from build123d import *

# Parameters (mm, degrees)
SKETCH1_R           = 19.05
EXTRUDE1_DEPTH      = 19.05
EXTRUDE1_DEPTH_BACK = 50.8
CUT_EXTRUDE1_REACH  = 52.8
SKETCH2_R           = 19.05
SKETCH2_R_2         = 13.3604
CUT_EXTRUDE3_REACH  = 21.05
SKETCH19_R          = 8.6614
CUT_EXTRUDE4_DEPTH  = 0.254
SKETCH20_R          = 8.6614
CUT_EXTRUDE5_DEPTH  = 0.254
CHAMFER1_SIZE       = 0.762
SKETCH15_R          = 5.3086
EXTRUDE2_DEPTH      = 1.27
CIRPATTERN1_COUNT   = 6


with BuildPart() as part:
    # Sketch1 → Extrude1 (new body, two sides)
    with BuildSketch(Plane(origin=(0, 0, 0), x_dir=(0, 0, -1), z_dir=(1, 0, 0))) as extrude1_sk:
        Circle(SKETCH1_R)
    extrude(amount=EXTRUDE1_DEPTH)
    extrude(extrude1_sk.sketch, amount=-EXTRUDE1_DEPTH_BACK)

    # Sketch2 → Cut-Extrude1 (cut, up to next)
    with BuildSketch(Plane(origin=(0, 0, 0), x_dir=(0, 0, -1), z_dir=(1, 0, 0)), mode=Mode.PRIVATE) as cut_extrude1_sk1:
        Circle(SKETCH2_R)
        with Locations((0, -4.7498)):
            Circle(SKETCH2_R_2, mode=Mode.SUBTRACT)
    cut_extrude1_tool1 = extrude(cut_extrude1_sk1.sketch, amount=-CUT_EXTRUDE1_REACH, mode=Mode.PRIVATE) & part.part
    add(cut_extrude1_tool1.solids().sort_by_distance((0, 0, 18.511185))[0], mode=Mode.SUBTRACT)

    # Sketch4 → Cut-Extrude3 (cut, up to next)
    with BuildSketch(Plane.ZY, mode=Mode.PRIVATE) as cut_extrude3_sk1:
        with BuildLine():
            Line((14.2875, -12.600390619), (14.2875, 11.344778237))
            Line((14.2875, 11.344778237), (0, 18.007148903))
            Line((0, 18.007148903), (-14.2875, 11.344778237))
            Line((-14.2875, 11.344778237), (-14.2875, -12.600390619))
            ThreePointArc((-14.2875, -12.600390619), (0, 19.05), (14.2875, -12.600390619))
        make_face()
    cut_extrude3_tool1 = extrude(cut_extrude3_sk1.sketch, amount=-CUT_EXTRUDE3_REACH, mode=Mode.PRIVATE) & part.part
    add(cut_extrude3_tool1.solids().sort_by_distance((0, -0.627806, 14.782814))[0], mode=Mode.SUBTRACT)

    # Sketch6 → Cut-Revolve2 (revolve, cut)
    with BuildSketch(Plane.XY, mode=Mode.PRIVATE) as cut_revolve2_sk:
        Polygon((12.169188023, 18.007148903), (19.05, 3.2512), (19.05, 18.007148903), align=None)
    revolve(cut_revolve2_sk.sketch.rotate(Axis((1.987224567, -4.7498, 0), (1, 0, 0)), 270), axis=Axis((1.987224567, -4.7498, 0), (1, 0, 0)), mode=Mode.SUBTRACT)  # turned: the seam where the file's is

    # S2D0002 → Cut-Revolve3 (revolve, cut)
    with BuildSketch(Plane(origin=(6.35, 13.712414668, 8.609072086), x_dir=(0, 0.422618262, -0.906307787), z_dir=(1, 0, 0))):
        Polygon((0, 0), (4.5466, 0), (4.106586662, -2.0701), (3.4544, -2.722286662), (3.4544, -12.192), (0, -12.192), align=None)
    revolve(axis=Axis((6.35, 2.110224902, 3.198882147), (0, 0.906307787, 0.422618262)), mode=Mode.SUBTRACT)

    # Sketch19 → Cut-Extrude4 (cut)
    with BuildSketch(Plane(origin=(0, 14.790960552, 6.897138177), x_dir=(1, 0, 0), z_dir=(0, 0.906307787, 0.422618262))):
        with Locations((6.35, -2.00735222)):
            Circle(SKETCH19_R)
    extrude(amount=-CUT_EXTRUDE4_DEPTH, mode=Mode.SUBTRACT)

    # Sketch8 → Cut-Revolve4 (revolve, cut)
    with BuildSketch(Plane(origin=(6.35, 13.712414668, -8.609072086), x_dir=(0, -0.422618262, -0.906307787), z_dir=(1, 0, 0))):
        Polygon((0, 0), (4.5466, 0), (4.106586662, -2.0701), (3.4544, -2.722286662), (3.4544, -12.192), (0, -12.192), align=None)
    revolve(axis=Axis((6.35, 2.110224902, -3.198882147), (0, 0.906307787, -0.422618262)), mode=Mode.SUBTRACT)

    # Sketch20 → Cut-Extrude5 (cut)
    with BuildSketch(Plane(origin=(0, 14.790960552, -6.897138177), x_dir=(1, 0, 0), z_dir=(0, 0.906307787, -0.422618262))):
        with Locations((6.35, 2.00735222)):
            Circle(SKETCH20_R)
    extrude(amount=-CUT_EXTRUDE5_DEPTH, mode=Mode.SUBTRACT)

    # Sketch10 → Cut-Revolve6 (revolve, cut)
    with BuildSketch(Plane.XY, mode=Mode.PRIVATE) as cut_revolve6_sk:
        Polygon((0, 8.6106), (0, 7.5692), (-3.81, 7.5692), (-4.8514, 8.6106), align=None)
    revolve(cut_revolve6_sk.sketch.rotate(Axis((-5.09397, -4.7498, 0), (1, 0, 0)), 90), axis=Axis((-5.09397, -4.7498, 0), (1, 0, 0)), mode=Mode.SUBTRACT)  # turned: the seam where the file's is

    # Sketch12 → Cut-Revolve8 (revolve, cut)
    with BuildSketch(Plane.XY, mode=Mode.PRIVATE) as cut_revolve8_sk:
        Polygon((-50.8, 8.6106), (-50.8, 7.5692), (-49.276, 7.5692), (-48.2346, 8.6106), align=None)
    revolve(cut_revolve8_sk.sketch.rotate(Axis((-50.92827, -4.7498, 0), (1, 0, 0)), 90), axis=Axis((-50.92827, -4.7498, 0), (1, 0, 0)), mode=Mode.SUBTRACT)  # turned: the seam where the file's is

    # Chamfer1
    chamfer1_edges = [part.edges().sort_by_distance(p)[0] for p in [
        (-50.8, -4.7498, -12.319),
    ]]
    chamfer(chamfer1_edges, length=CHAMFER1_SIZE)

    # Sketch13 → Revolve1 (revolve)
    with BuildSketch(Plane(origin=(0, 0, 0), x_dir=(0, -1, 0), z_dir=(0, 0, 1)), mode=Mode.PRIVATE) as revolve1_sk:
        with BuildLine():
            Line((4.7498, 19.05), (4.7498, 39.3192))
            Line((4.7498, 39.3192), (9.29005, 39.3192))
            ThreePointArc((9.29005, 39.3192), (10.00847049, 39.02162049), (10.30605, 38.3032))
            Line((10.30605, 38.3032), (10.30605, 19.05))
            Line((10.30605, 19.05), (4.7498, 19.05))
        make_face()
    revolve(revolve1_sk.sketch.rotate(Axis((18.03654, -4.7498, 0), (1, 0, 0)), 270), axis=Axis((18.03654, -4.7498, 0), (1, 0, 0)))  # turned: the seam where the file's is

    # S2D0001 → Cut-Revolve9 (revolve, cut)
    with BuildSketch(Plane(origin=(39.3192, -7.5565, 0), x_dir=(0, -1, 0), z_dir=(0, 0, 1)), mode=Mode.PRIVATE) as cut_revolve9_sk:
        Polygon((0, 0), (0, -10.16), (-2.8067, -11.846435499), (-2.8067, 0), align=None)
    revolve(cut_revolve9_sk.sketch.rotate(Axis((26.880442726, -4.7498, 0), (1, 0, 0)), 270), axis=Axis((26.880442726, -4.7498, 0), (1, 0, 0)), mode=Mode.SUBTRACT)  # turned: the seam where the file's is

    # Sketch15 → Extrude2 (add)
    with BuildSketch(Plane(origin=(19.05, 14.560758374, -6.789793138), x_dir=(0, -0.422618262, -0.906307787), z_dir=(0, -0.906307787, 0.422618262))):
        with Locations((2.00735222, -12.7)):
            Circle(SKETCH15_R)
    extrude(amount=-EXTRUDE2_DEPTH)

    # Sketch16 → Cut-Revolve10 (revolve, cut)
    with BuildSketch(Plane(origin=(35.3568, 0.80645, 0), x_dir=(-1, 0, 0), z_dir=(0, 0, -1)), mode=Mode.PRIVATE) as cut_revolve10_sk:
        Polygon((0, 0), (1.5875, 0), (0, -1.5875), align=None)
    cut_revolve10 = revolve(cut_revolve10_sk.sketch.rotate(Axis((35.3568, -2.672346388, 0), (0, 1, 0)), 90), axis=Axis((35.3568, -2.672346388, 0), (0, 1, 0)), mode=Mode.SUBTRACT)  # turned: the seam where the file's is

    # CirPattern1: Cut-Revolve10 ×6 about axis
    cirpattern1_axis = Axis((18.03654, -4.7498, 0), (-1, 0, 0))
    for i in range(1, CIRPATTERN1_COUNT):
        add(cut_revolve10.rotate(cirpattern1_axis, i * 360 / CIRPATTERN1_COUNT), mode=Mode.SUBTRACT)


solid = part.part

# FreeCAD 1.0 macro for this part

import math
import FreeCAD as App
import Part
import Sketcher
from FreeCAD import Vector
Q = App.Units.Quantity


def edges_at(feature, points):
    """Names of the edges that pass closest to the given points."""
    edges = feature.Shape.Edges
    near = lambda p: min(range(len(edges)), key=lambda i: edges[i].distToShape(Part.Vertex(*p))[0])
    return sorted({f"Edge{near(p) + 1}" for p in points})


def add_polygon(sketch, points):
    """Adds a closed chain of lines whose ends are joined by coincident constraints."""
    first, n = sketch.GeometryCount, len(points)
    for a, b in zip(points, points[1:] + points[:1]):
        sketch.addGeometry(Part.LineSegment(App.Vector(*a, 0), App.Vector(*b, 0)), False)
    for i in range(n):
        sketch.addConstraint(Sketcher.Constraint("Coincident", first + i, 2, first + (i + 1) % n, 1))

doc = App.newDocument("Part")
params = doc.addObject("Spreadsheet::Sheet", "Params")
for row, (alias, value) in enumerate([
    ("sketch1_diameter", "1.5 in"),
    ("pad1_length", "0.75 in"),
    ("pad1_length2", "2 in"),
    ("sketch2_diameter", "1.5 in"),
    ("sketch2_diameter2", "1.052 in"),
    ("sketch3_radius", "0.75 in"),
    ("groove_angle", "360 deg"),
    ("sketch5_length", "0.48 in"),
    ("sketch5_length2", "0.179 in"),
    ("sketch5_length3", "0.136 in"),
    ("groove2_angle", "360 deg"),
    ("sketch6_diameter", "0.682 in"),
    ("pocket3_length", "0.01 in"),
    ("sketch7_length", "0.48 in"),
    ("sketch7_length2", "0.179 in"),
    ("sketch7_length3", "0.136 in"),
    ("groove3_angle", "360 deg"),
    ("sketch8_diameter", "0.682 in"),
    ("pocket4_length", "0.01 in"),
    ("sketch9_width", "0.15 in"),
    ("sketch9_width2", "0.191 in"),
    ("groove4_angle", "360 deg"),
    ("sketch10_width", "0.06 in"),
    ("sketch10_width2", "0.101 in"),
    ("groove5_angle", "360 deg"),
    ("chamfer_size", "0.03 in"),
    ("sketch11_radius", "0.04 in"),
    ("sketch11_width", "0.798 in"),
    ("sketch11_height", "0.21875 in"),
    ("revolution_angle", "360 deg"),
    ("sketch12_width", "0.4 in"),
    ("groove6_angle", "360 deg"),
    ("sketch13_diameter", "0.418 in"),
    ("pad2_length", "0.05 in"),
    ("sketch14_width", "0.0625 in"),
    ("groove7_angle", "360 deg"),
], start=1):
    params.set(f"A{row}", alias)
    params.set(f"B{row}", "=" + value)
    params.setAlias(f"B{row}", alias)

body = doc.addObject("PartDesign::Body", "Body")

# Sketch on YZ plane
sketch1 = body.newObject("Sketcher::SketchObject", "Sketch")
sketch1.AttachmentSupport = (doc.getObject("YZ_Plane"), [""])
sketch1.MapMode = "FlatFace"
sketch1.addGeometry(Part.Circle(Vector(0, 0, 0), Vector(0, 0, 1), 19.05), False)
sketch1.addConstraint(Sketcher.Constraint("Coincident", 0, 3, -1, 1))
sketch1.addConstraint(Sketcher.Constraint("Diameter", 0, Q("1.5 in")))
sketch1.setExpression("Constraints[1]", "Params.sketch1_diameter")
pad1 = body.newObject("PartDesign::Pad", "Pad")
pad1.Profile = sketch1
pad1.Type = "TwoLengths"
pad1.setExpression("Length", "Params.pad1_length")
pad1.setExpression("Length2", "Params.pad1_length2")

# Sketch on YZ plane
sketch2 = body.newObject("Sketcher::SketchObject", "Sketch001")
sketch2.AttachmentSupport = (doc.getObject("YZ_Plane"), [""])
sketch2.MapMode = "FlatFace"
sketch2.addGeometry(Part.Circle(Vector(0, 0, 0), Vector(0, 0, 1), 19.05), False)
sketch2.addGeometry(Part.Circle(Vector(-4.7498, 0, 0), Vector(0, 0, 1), 13.3604), False)
sketch2.addConstraint(Sketcher.Constraint("Coincident", 0, 3, -1, 1))
sketch2.addConstraint(Sketcher.Constraint("PointOnObject", 1, 3, -1))
sketch2.addConstraint(Sketcher.Constraint("Diameter", 0, Q("1.5 in")))
sketch2.addConstraint(Sketcher.Constraint("Diameter", 1, Q("1.052 in")))
sketch2.addConstraint(Sketcher.Constraint("DistanceX", 1, 3, -1, 1, Q("0.187 in")))
sketch2.setExpression("Constraints[2]", "Params.sketch2_diameter")
sketch2.setExpression("Constraints[3]", "Params.sketch2_diameter2")
pocket1 = body.newObject("PartDesign::Pocket", "Pocket")
pocket1.Profile = sketch2
pocket1.Type = "UpToFirst"

# Sketch on YZ plane
sketch3 = body.newObject("Sketcher::SketchObject", "Sketch002")
sketch3.AttachmentSupport = (doc.getObject("YZ_Plane"), [""])
sketch3.MapMode = "FlatFace"
sketch3.addGeometry(Part.LineSegment(Vector(11.344778, 14.2875, 0), Vector(-12.600391, 14.2875, 0)), False)
sketch3.addGeometry(Part.ArcOfCircle(Part.Circle(Vector(0, 0, 0), Vector(0, 0, 1), 19.05), math.radians(-131.409622), math.radians(131.409622)), False)
sketch3.addGeometry(Part.LineSegment(Vector(-12.600391, -14.2875, 0), Vector(11.344778, -14.2875, 0)), False)
sketch3.addGeometry(Part.LineSegment(Vector(11.344778, -14.2875, 0), Vector(18.007149, 0, 0)), False)
sketch3.addGeometry(Part.LineSegment(Vector(18.007149, 0, 0), Vector(11.344778, 14.2875, 0)), False)
sketch3.addConstraint(Sketcher.Constraint("Coincident", 0, 2, 1, 2))
sketch3.addConstraint(Sketcher.Constraint("Coincident", 1, 1, 2, 1))
sketch3.addConstraint(Sketcher.Constraint("Coincident", 2, 2, 3, 1))
sketch3.addConstraint(Sketcher.Constraint("Coincident", 3, 2, 4, 1))
sketch3.addConstraint(Sketcher.Constraint("Coincident", 4, 2, 0, 1))
sketch3.addConstraint(Sketcher.Constraint("Horizontal", 0))
sketch3.addConstraint(Sketcher.Constraint("Horizontal", 2))
sketch3.addConstraint(Sketcher.Constraint("Coincident", 1, 3, -1, 1))
sketch3.addConstraint(Sketcher.Constraint("Symmetric", 2, 2, 4, 2, -1))
sketch3.addConstraint(Sketcher.Constraint("PointOnObject", 3, 2, -1))
sketch3.addConstraint(Sketcher.Constraint("Radius", 1, Q("0.75 in")))
sketch3.addConstraint(Sketcher.Constraint("Angle", 3, Q("65 deg")))
sketch3.addConstraint(Sketcher.Constraint("DistanceY", -1, 1, 0, 2, Q("0.5625 in")))
sketch3.addConstraint(Sketcher.Constraint("DistanceX", 0, 2, 0, 1, Q("23.945169 mm")))
sketch3.setExpression("Constraints[10]", "Params.sketch3_radius")
pocket2 = body.newObject("PartDesign::Pocket", "Pocket001")
pocket2.Profile = sketch3
pocket2.Type = "UpToFirst"
pocket2.Reversed = True

# Sketch on XY plane
sketch4 = body.newObject("Sketcher::SketchObject", "Sketch003")
sketch4.AttachmentSupport = (doc.getObject("XY_Plane"), [""])
sketch4.MapMode = "FlatFace"
add_polygon(sketch4, [(12.169188, 18.007149), (19.05, 3.2512), (19.05, 18.007149)])  # lines 0-2
sketch4.addGeometry(Part.LineSegment(Vector(12.169188, -4.7498, 0), Vector(19.05, -4.7498, 0)), True)  # axis
sketch4.addConstraint(Sketcher.Constraint("Vertical", 1))
sketch4.addConstraint(Sketcher.Constraint("Horizontal", 2))
sketch4.addConstraint(Sketcher.Constraint("Horizontal", 3))
sketch4.addConstraint(Sketcher.Constraint("Vertical", 2, 2, 3, 1))
sketch4.addConstraint(Sketcher.Constraint("Vertical", 1, 2, 3, 2))
sketch4.addConstraint(Sketcher.Constraint("Angle", 0, Q("-65 deg")))
sketch4.addConstraint(Sketcher.Constraint("DistanceX", -1, 1, 0, 2, Q("0.75 in")))
sketch4.addConstraint(Sketcher.Constraint("DistanceY", -1, 1, 0, 2, Q("0.128 in")))
sketch4.addConstraint(Sketcher.Constraint("DistanceY", 3, 1, -1, 1, Q("0.187 in")))
sketch4.addConstraint(Sketcher.Constraint("DistanceX", 2, 2, 2, 1, Q("6.880812 mm")))
groove = body.newObject("PartDesign::Groove", "Groove")
groove.Profile = sketch4
groove.ReferenceAxis = (sketch4, ["Axis0"])
groove.setExpression("Angle", "Params.groove_angle")

# Sketch on YZ plane
sketch5 = body.newObject("Sketcher::SketchObject", "Sketch004")
sketch5.AttachmentSupport = (doc.getObject("YZ_Plane"), [""])
sketch5.MapMode = "FlatFace"
sketch5.AttachmentOffset = App.Placement(Vector(0, 0, 0.25 * 25.4), App.Rotation())
add_polygon(sketch5, [(15.633891, 4.488453), (13.712415, 8.609072), (2.66271, 3.45651), (4.122603, 0.325761), (12.705078, 4.327834), (13.571785, 4.012379)])  # lines 0-5
sketch5.addGeometry(Part.LineSegment(Vector(2.66271, 3.45651, 0), Vector(13.712415, 8.609072, 0)), True)  # axis
sketch5.addConstraint(Sketcher.Constraint("Coincident", 6, 1, 1, 2))
sketch5.addConstraint(Sketcher.Constraint("Coincident", 6, 2, 0, 2))
sketch5.addConstraint(Sketcher.Constraint("Perpendicular", 0, 1))
sketch5.addConstraint(Sketcher.Constraint("Perpendicular", 1, 2))
sketch5.addConstraint(Sketcher.Constraint("Perpendicular", 2, 3))
sketch5.addConstraint(Sketcher.Constraint("Angle", 0, Q("115 deg")))
sketch5.addConstraint(Sketcher.Constraint("Angle", 4, Q("-20 deg")))
sketch5.addConstraint(Sketcher.Constraint("Angle", 5, Q("13 deg")))
sketch5.addConstraint(Sketcher.Constraint("Distance", 1, Q("0.48 in")))
sketch5.addConstraint(Sketcher.Constraint("Distance", 0, Q("0.179 in")))
sketch5.addConstraint(Sketcher.Constraint("Distance", 2, Q("0.136 in")))
sketch5.addConstraint(Sketcher.Constraint("DistanceX", -1, 1, 3, 2, Q("0.5001999 in")))
sketch5.addConstraint(Sketcher.Constraint("Distance", 4, Q("0.922331 mm")))
sketch5.addConstraint(Sketcher.Constraint("DistanceY", -1, 1, 1, 2, Q("3.45651 mm")))
sketch5.setExpression("Constraints[14]", "Params.sketch5_length")
sketch5.setExpression("Constraints[15]", "Params.sketch5_length2")
sketch5.setExpression("Constraints[16]", "Params.sketch5_length3")
groove2 = body.newObject("PartDesign::Groove", "Groove001")
groove2.Profile = sketch5
groove2.ReferenceAxis = (sketch5, ["Axis0"])
groove2.setExpression("Angle", "Params.groove2_angle")

# Sketch on an angled plane
sketch6 = body.newObject("Sketcher::SketchObject", "Sketch005")
sketch6.Placement = App.Placement(Vector(0, 14.790961, 6.897138), App.Rotation(Vector(1, 0, 0), Vector(0, 0.422618262, -0.906307787), Vector(0, 0.906307787, 0.422618262), "ZXY"))
sketch6.addGeometry(Part.Circle(Vector(6.35, -2.007352, 0), Vector(0, 0, 1), 8.6614), False)
sketch6.addConstraint(Sketcher.Constraint("Diameter", 0, Q("0.682 in")))
sketch6.addConstraint(Sketcher.Constraint("DistanceX", -1, 1, 0, 3, Q("0.25 in")))
sketch6.addConstraint(Sketcher.Constraint("DistanceY", 0, 3, -1, 1, Q("2.007352 mm")))
sketch6.setExpression("Constraints[0]", "Params.sketch6_diameter")
pocket3 = body.newObject("PartDesign::Pocket", "Pocket002")
pocket3.Profile = sketch6
pocket3.setExpression("Length", "Params.pocket3_length")

# Sketch on YZ plane
sketch7 = body.newObject("Sketcher::SketchObject", "Sketch006")
sketch7.AttachmentSupport = (doc.getObject("YZ_Plane"), [""])
sketch7.MapMode = "FlatFace"
sketch7.AttachmentOffset = App.Placement(Vector(0, 0, 0.25 * 25.4), App.Rotation())
add_polygon(sketch7, [(11.790938, -12.729691), (13.712415, -8.609072), (2.66271, -3.45651), (1.202818, -6.58726), (9.785293, -10.589334), (10.100748, -11.456041)])  # lines 0-5
sketch7.addGeometry(Part.LineSegment(Vector(2.66271, -3.45651, 0), Vector(13.712415, -8.609072, 0)), True)  # axis
sketch7.addConstraint(Sketcher.Constraint("Coincident", 6, 1, 1, 2))
sketch7.addConstraint(Sketcher.Constraint("Coincident", 6, 2, 0, 2))
sketch7.addConstraint(Sketcher.Constraint("Perpendicular", 0, 1))
sketch7.addConstraint(Sketcher.Constraint("Perpendicular", 1, 2))
sketch7.addConstraint(Sketcher.Constraint("Perpendicular", 2, 3))
sketch7.addConstraint(Sketcher.Constraint("Angle", 0, Q("65 deg")))
sketch7.addConstraint(Sketcher.Constraint("Angle", 4, Q("-70 deg")))
sketch7.addConstraint(Sketcher.Constraint("Angle", 5, Q("-37 deg")))
sketch7.addConstraint(Sketcher.Constraint("Distance", 1, Q("0.48 in")))
sketch7.addConstraint(Sketcher.Constraint("Distance", 0, Q("0.179 in")))
sketch7.addConstraint(Sketcher.Constraint("Distance", 2, Q("0.136 in")))
sketch7.addConstraint(Sketcher.Constraint("Distance", 4, Q("0.922331 mm")))
sketch7.addConstraint(Sketcher.Constraint("DistanceX", -1, 1, 1, 2, Q("2.66271 mm")))
sketch7.addConstraint(Sketcher.Constraint("DistanceY", 1, 2, -1, 1, Q("3.45651 mm")))
sketch7.setExpression("Constraints[14]", "Params.sketch7_length")
sketch7.setExpression("Constraints[15]", "Params.sketch7_length2")
sketch7.setExpression("Constraints[16]", "Params.sketch7_length3")
groove3 = body.newObject("PartDesign::Groove", "Groove002")
groove3.Profile = sketch7
groove3.ReferenceAxis = (sketch7, ["Axis0"])
groove3.setExpression("Angle", "Params.groove3_angle")

# Sketch on an angled plane
sketch8 = body.newObject("Sketcher::SketchObject", "Sketch007")
sketch8.Placement = App.Placement(Vector(0, 14.790961, -6.897138), App.Rotation(Vector(1, 0, 0), Vector(0, -0.422618262, -0.906307787), Vector(0, 0.906307787, -0.422618262), "ZXY"))
sketch8.addGeometry(Part.Circle(Vector(6.35, 2.007352, 0), Vector(0, 0, 1), 8.6614), False)
sketch8.addConstraint(Sketcher.Constraint("Diameter", 0, Q("0.682 in")))
sketch8.addConstraint(Sketcher.Constraint("DistanceX", -1, 1, 0, 3, Q("0.25 in")))
sketch8.addConstraint(Sketcher.Constraint("DistanceY", -1, 1, 0, 3, Q("2.007352 mm")))
sketch8.setExpression("Constraints[0]", "Params.sketch8_diameter")
pocket4 = body.newObject("PartDesign::Pocket", "Pocket003")
pocket4.Profile = sketch8
pocket4.setExpression("Length", "Params.pocket4_length")

# Sketch on XY plane
sketch9 = body.newObject("Sketcher::SketchObject", "Sketch008")
sketch9.AttachmentSupport = (doc.getObject("XY_Plane"), [""])
sketch9.MapMode = "FlatFace"
add_polygon(sketch9, [(0, 7.5692), (0, 8.6106), (-4.8514, 8.6106), (-3.81, 7.5692)])  # lines 0-3
sketch9.addGeometry(Part.LineSegment(Vector(-4.8514, -4.7498, 0), Vector(0, -4.7498, 0)), True)  # axis
sketch9.addConstraint(Sketcher.Constraint("Vertical", 0))
sketch9.addConstraint(Sketcher.Constraint("Horizontal", 1))
sketch9.addConstraint(Sketcher.Constraint("Horizontal", 3))
sketch9.addConstraint(Sketcher.Constraint("Horizontal", 4))
sketch9.addConstraint(Sketcher.Constraint("PointOnObject", 0, 2, -2))
sketch9.addConstraint(Sketcher.Constraint("PointOnObject", 4, 2, -2))
sketch9.addConstraint(Sketcher.Constraint("Vertical", 1, 2, 4, 1))
sketch9.addConstraint(Sketcher.Constraint("Angle", 2, Q("-45 deg")))
sketch9.addConstraint(Sketcher.Constraint("DistanceX", 3, 1, 3, 2, Q("0.15 in")))
sketch9.addConstraint(Sketcher.Constraint("DistanceX", 1, 2, 1, 1, Q("0.191 in")))
sketch9.addConstraint(Sketcher.Constraint("DistanceY", -1, 1, 0, 2, Q("0.339 in")))
sketch9.addConstraint(Sketcher.Constraint("DistanceY", 4, 1, -1, 1, Q("0.187 in")))
sketch9.setExpression("Constraints[12]", "Params.sketch9_width")
sketch9.setExpression("Constraints[13]", "Params.sketch9_width2")
groove4 = body.newObject("PartDesign::Groove", "Groove003")
groove4.Profile = sketch9
groove4.ReferenceAxis = (sketch9, ["Axis0"])
groove4.setExpression("Angle", "Params.groove4_angle")

# Sketch on XY plane
sketch10 = body.newObject("Sketcher::SketchObject", "Sketch009")
sketch10.AttachmentSupport = (doc.getObject("XY_Plane"), [""])
sketch10.MapMode = "FlatFace"
add_polygon(sketch10, [(-50.8, 8.6106), (-50.8, 7.5692), (-49.276, 7.5692), (-48.2346, 8.6106)])  # lines 0-3
sketch10.addGeometry(Part.LineSegment(Vector(-50.8, -4.7498, 0), Vector(-48.2346, -4.7498, 0)), True)  # axis
sketch10.addConstraint(Sketcher.Constraint("Vertical", 0))
sketch10.addConstraint(Sketcher.Constraint("Horizontal", 1))
sketch10.addConstraint(Sketcher.Constraint("Horizontal", 3))
sketch10.addConstraint(Sketcher.Constraint("Horizontal", 4))
sketch10.addConstraint(Sketcher.Constraint("Vertical", 3, 2, 4, 1))
sketch10.addConstraint(Sketcher.Constraint("Vertical", 2, 2, 4, 2))
sketch10.addConstraint(Sketcher.Constraint("DistanceX", 0, 2, -1, 1, Q("2 in")))
sketch10.addConstraint(Sketcher.Constraint("Angle", 2, Q("45 deg")))
sketch10.addConstraint(Sketcher.Constraint("DistanceX", 1, 1, 1, 2, Q("0.06 in")))
sketch10.addConstraint(Sketcher.Constraint("DistanceX", 3, 2, 3, 1, Q("0.101 in")))
sketch10.addConstraint(Sketcher.Constraint("DistanceY", -1, 1, 0, 2, Q("0.298 in")))
sketch10.addConstraint(Sketcher.Constraint("DistanceY", 4, 1, -1, 1, Q("0.187 in")))
sketch10.setExpression("Constraints[12]", "Params.sketch10_width")
sketch10.setExpression("Constraints[13]", "Params.sketch10_width2")
groove5 = body.newObject("PartDesign::Groove", "Groove004")
groove5.Profile = sketch10
groove5.ReferenceAxis = (sketch10, ["Axis0"])
groove5.setExpression("Angle", "Params.groove5_angle")
doc.recompute()

chamfer = body.newObject("PartDesign::Chamfer", "Chamfer")
chamfer.Base = (groove5, edges_at(groove5, [(-50.8, -4.75, -12.319)]))
chamfer.setExpression("Size", "Params.chamfer_size")

# Sketch on XY plane
sketch11 = body.newObject("Sketcher::SketchObject", "Sketch010")
sketch11.AttachmentSupport = (doc.getObject("XY_Plane"), [""])
sketch11.MapMode = "FlatFace"
sketch11.addGeometry(Part.LineSegment(Vector(39.3192, -4.7498, 0), Vector(19.05, -4.7498, 0)), False)
sketch11.addGeometry(Part.LineSegment(Vector(19.05, -4.7498, 0), Vector(19.05, -10.30605, 0)), False)
sketch11.addGeometry(Part.LineSegment(Vector(19.05, -10.30605, 0), Vector(38.3032, -10.30605, 0)), False)
sketch11.addGeometry(Part.ArcOfCircle(Part.Circle(Vector(38.3032, -9.29005, 0), Vector(0, 0, 1), 1.016), math.radians(-90), math.radians(0)), False)
sketch11.addGeometry(Part.LineSegment(Vector(39.3192, -9.29005, 0), Vector(39.3192, -4.7498, 0)), False)
sketch11.addGeometry(Part.LineSegment(Vector(19.05, -4.7498, 0), Vector(39.3192, -4.7498, 0)), True)  # axis
sketch11.addConstraint(Sketcher.Constraint("Coincident", 0, 2, 1, 1))
sketch11.addConstraint(Sketcher.Constraint("Coincident", 1, 2, 2, 1))
sketch11.addConstraint(Sketcher.Constraint("Tangent", 2, 2, 3, 1))
sketch11.addConstraint(Sketcher.Constraint("Tangent", 3, 2, 4, 1))
sketch11.addConstraint(Sketcher.Constraint("Coincident", 4, 2, 0, 1))
sketch11.addConstraint(Sketcher.Constraint("Horizontal", 0))
sketch11.addConstraint(Sketcher.Constraint("Vertical", 1))
sketch11.addConstraint(Sketcher.Constraint("Horizontal", 2))
sketch11.addConstraint(Sketcher.Constraint("Vertical", 4))
sketch11.addConstraint(Sketcher.Constraint("Horizontal", 5))
sketch11.addConstraint(Sketcher.Constraint("Coincident", 5, 1, 0, 2))
sketch11.addConstraint(Sketcher.Constraint("Vertical", 3, 2, 5, 2))
sketch11.addConstraint(Sketcher.Constraint("Radius", 3, Q("0.04 in")))
sketch11.addConstraint(Sketcher.Constraint("DistanceX", 0, 2, 0, 1, Q("0.798 in")))
sketch11.addConstraint(Sketcher.Constraint("DistanceY", 1, 2, 1, 1, Q("0.21875 in")))
sketch11.addConstraint(Sketcher.Constraint("DistanceX", -1, 1, 0, 2, Q("0.75 in")))
sketch11.addConstraint(Sketcher.Constraint("DistanceY", 0, 2, -1, 1, Q("0.187 in")))
sketch11.setExpression("Constraints[12]", "Params.sketch11_radius")
sketch11.setExpression("Constraints[13]", "Params.sketch11_width")
sketch11.setExpression("Constraints[14]", "Params.sketch11_height")
revolution = body.newObject("PartDesign::Revolution", "Revolution")
revolution.Profile = sketch11
revolution.ReferenceAxis = (sketch11, ["Axis0"])
revolution.setExpression("Angle", "Params.revolution_angle")

# Sketch on XY plane
sketch12 = body.newObject("Sketcher::SketchObject", "Sketch011")
sketch12.AttachmentSupport = (doc.getObject("XY_Plane"), [""])
sketch12.MapMode = "FlatFace"
add_polygon(sketch12, [(29.1592, -7.5565), (39.3192, -7.5565), (39.3192, -4.7498), (27.472765, -4.7498)])  # lines 0-3
sketch12.addGeometry(Part.LineSegment(Vector(27.472765, -4.7498, 0), Vector(39.3192, -4.7498, 0)), True)  # axis
sketch12.addConstraint(Sketcher.Constraint("Horizontal", 0))
sketch12.addConstraint(Sketcher.Constraint("Vertical", 1))
sketch12.addConstraint(Sketcher.Constraint("Horizontal", 2))
sketch12.addConstraint(Sketcher.Constraint("Horizontal", 4))
sketch12.addConstraint(Sketcher.Constraint("Coincident", 4, 1, 2, 2))
sketch12.addConstraint(Sketcher.Constraint("Vertical", 0, 2, 4, 2))
sketch12.addConstraint(Sketcher.Constraint("DistanceX", 0, 1, 0, 2, Q("0.4 in")))
sketch12.addConstraint(Sketcher.Constraint("Angle", 3, Q("-59 deg")))
sketch12.addConstraint(Sketcher.Constraint("DistanceY", 1, 1, 1, 2, Q("0.1105 in")))
sketch12.addConstraint(Sketcher.Constraint("DistanceX", -1, 1, 0, 2, Q("1.548 in")))
sketch12.addConstraint(Sketcher.Constraint("DistanceY", 1, 2, -1, 1, Q("0.187 in")))
sketch12.setExpression("Constraints[10]", "Params.sketch12_width")
groove6 = body.newObject("PartDesign::Groove", "Groove005")
groove6.Profile = sketch12
groove6.ReferenceAxis = (sketch12, ["Axis0"])
groove6.setExpression("Angle", "Params.groove6_angle")

# Sketch on an angled plane
sketch13 = body.newObject("Sketcher::SketchObject", "Sketch012")
sketch13.Placement = App.Placement(Vector(19.05, 14.560758, -6.789793), App.Rotation(Vector(0, -0.422618262, -0.906307787), Vector(1, 0, 0), Vector(0, -0.906307787, 0.422618262), "ZXY"))
sketch13.addGeometry(Part.Circle(Vector(2.007352, -12.7, 0), Vector(0, 0, 1), 5.3086), False)
sketch13.addConstraint(Sketcher.Constraint("Diameter", 0, Q("0.418 in")))
sketch13.addConstraint(Sketcher.Constraint("DistanceY", 0, 3, -1, 1, Q("0.5 in")))
sketch13.addConstraint(Sketcher.Constraint("DistanceX", -1, 1, 0, 3, Q("2.007352 mm")))
sketch13.setExpression("Constraints[0]", "Params.sketch13_diameter")
pad2 = body.newObject("PartDesign::Pad", "Pad001")
pad2.Profile = sketch13
pad2.setExpression("Length", "Params.pad2_length")
pad2.Reversed = True

# Sketch on XY plane
sketch14 = body.newObject("Sketcher::SketchObject", "Sketch013")
sketch14.AttachmentSupport = (doc.getObject("XY_Plane"), [""])
sketch14.MapMode = "FlatFace"
add_polygon(sketch14, [(33.7693, 0.80645), (35.3568, 0.80645), (35.3568, -0.78105)])  # lines 0-2
sketch14.addGeometry(Part.LineSegment(Vector(35.3568, -0.78105, 0), Vector(35.3568, 0.80645, 0)), True)  # axis
sketch14.addConstraint(Sketcher.Constraint("Horizontal", 0))
sketch14.addConstraint(Sketcher.Constraint("Vertical", 1))
sketch14.addConstraint(Sketcher.Constraint("Vertical", 3))
sketch14.addConstraint(Sketcher.Constraint("Coincident", 3, 1, 1, 2))
sketch14.addConstraint(Sketcher.Constraint("Horizontal", 2, 2, 3, 2))
sketch14.addConstraint(Sketcher.Constraint("Equal", 0, 1))
sketch14.addConstraint(Sketcher.Constraint("DistanceX", 0, 1, 0, 2, Q("0.0625 in")))
sketch14.addConstraint(Sketcher.Constraint("DistanceX", -1, 1, 0, 2, Q("1.392 in")))
sketch14.addConstraint(Sketcher.Constraint("DistanceY", -1, 1, 0, 2, Q("0.80645 mm")))
sketch14.setExpression("Constraints[9]", "Params.sketch14_width")
groove7 = body.newObject("PartDesign::Groove", "Groove006")
groove7.Profile = sketch14
groove7.ReferenceAxis = (sketch14, ["Axis0"])
groove7.setExpression("Angle", "Params.groove7_angle")
doc.recompute()

datumline = body.newObject("PartDesign::Line", "DatumLine")
datumline.Placement = App.Placement(Vector(0, -4.7498, 0), App.Rotation(Vector(0, 0, 1), Vector(-1, 0, 0)))
polarpattern = body.newObject("PartDesign::PolarPattern", "PolarPattern")
polarpattern.Originals = [groove7]
polarpattern.Axis = (datumline, [""])
polarpattern.Angle = 360
polarpattern.Occurrences = 6
body.Tip = polarpattern

doc.recompute()
